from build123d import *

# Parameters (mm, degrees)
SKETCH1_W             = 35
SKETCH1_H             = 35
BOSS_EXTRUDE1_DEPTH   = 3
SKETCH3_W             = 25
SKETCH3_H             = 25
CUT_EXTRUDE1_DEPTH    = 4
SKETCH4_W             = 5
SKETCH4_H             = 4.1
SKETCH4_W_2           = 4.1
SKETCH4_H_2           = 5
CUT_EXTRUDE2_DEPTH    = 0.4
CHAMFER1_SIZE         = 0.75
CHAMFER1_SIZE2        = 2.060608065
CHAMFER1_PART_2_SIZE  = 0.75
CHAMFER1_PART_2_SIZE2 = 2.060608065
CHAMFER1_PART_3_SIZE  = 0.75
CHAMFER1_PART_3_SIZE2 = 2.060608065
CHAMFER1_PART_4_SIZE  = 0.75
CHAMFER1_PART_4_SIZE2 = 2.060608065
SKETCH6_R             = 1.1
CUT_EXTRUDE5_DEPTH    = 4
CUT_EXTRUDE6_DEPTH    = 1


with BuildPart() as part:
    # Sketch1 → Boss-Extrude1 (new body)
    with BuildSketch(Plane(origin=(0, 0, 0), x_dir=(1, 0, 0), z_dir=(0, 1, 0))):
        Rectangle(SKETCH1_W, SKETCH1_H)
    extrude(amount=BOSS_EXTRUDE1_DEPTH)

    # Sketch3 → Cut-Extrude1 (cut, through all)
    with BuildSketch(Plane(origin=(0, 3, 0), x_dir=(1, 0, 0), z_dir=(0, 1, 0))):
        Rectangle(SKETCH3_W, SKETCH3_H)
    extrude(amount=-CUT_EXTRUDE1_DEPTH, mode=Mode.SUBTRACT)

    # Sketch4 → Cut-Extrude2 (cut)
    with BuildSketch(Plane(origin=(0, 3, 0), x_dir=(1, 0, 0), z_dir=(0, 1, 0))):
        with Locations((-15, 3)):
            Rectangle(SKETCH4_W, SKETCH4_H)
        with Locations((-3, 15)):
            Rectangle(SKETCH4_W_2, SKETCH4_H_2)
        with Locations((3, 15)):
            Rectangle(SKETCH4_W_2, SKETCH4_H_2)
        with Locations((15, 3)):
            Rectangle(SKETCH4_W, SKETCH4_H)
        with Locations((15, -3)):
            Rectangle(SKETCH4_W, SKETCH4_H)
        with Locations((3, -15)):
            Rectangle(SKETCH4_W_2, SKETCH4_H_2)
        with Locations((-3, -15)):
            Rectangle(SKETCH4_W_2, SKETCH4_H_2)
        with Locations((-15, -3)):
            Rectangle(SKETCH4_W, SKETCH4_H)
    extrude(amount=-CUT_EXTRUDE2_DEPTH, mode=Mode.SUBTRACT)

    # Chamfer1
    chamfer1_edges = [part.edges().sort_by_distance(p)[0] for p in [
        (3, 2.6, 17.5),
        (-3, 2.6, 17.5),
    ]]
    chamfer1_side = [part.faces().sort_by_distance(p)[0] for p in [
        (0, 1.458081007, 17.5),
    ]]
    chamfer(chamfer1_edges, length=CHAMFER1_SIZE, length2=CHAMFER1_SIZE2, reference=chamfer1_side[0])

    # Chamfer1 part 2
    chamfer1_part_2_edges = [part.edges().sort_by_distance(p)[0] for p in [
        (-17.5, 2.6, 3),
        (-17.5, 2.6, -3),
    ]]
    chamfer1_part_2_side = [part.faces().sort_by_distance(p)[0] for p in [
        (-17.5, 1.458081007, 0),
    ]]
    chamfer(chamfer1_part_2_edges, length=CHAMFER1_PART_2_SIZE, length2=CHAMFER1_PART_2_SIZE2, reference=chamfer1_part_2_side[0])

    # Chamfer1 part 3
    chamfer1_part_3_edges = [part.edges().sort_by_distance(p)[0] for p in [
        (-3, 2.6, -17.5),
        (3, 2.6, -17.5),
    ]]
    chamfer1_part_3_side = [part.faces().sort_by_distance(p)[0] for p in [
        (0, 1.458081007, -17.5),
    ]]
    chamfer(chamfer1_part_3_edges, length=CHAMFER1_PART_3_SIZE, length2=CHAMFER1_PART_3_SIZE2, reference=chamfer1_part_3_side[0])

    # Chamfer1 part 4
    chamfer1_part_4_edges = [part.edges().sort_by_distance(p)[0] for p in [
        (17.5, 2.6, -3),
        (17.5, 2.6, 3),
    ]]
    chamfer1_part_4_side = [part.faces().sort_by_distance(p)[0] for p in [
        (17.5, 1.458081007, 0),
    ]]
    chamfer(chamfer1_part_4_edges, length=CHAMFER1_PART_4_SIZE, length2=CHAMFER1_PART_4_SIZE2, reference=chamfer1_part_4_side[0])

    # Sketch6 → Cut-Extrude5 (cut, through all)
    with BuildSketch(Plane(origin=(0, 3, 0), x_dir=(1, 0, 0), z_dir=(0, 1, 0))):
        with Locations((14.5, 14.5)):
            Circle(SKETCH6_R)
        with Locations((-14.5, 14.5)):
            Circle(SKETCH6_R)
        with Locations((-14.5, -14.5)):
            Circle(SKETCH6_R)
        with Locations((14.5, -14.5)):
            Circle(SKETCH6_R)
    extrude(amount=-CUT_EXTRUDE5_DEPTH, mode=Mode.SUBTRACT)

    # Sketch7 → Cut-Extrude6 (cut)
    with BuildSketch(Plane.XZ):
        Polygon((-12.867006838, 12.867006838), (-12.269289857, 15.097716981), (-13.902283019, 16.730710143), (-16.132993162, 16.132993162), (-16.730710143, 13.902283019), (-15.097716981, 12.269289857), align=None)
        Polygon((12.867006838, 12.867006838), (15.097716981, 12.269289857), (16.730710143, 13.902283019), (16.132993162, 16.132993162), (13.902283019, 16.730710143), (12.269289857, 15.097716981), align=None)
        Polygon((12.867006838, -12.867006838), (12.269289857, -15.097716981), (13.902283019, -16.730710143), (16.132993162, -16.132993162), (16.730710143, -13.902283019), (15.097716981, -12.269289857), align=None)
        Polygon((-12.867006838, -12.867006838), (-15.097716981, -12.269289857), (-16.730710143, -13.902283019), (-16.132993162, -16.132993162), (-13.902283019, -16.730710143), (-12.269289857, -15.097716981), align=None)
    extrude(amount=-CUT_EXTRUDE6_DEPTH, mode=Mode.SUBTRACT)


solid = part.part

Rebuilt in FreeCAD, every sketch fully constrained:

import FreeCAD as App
import Part
import Sketcher
from FreeCAD import Vector
Q = App.Units.Quantity


def edges_at(feature, points):
    """Names of the edges that pass closest to the given points."""
    edges = feature.Shape.Edges
    near = lambda p: min(range(len(edges)), key=lambda i: edges[i].distToShape(Part.Vertex(*p))[0])
    return sorted({f"Edge{near(p) + 1}" for p in points})

doc = App.newDocument("Part")
body = doc.addObject("PartDesign::Body", "Body")

sketch1 = body.newObject("Sketcher::SketchObject", "Sketch")
sketch1.AttachmentSupport = (doc.getObject("XZ_Plane"), [""])
sketch1.MapMode = "FlatFace"
sketch1.addGeometry([
    Part.LineSegment(Vector(-18, -18, 0), Vector(-18, 18, 0)),
    Part.LineSegment(Vector(-18, 18, 0), Vector(18, 18, 0)),
    Part.LineSegment(Vector(18, 18, 0), Vector(18, -18, 0)),
    Part.LineSegment(Vector(18, -18, 0), Vector(-18, -18, 0)),
], False)
sketch1.addConstraint([
    Sketcher.Constraint("Coincident", 0, 2, 1, 1),
    Sketcher.Constraint("Coincident", 1, 2, 2, 1),
    Sketcher.Constraint("Coincident", 2, 2, 3, 1),
    Sketcher.Constraint("Coincident", 3, 2, 0, 1),
    Sketcher.Constraint("Vertical", 0),
    Sketcher.Constraint("Horizontal", 1),
    Sketcher.Constraint("Vertical", 2),
    Sketcher.Constraint("Horizontal", 3),
    Sketcher.Constraint("Symmetric", 0, 2, 2, 2, -1, 1),
    Sketcher.Constraint("Equal", 3, 0),
    Sketcher.Constraint("DistanceX", 1, 1, 1, 2, 35.0),
])
pad1 = body.newObject("PartDesign::Pad", "Pad")
pad1.Profile = sketch1
pad1.Length = 3
pad1.Reversed = True

sketch2 = body.newObject("Sketcher::SketchObject", "Sketch001")
sketch2.AttachmentSupport = (doc.getObject("XZ_Plane"), [""])
sketch2.MapMode = "FlatFace"
sketch2.AttachmentOffset = App.Placement(Vector(0, 0, -3), App.Rotation())
sketch2.addGeometry([
    Part.LineSegment(Vector(-12, -12, 0), Vector(-12, 12, 0)),
    Part.LineSegment(Vector(-12, 12, 0), Vector(12, 12, 0)),
    Part.LineSegment(Vector(12, 12, 0), Vector(12, -12, 0)),
    Part.LineSegment(Vector(12, -12, 0), Vector(-12, -12, 0)),
], False)
sketch2.addConstraint([
    Sketcher.Constraint("Coincident", 0, 2, 1, 1),
    Sketcher.Constraint("Coincident", 1, 2, 2, 1),
    Sketcher.Constraint("Coincident", 2, 2, 3, 1),
    Sketcher.Constraint("Coincident", 3, 2, 0, 1),
    Sketcher.Constraint("Vertical", 0),
    Sketcher.Constraint("Horizontal", 1),
    Sketcher.Constraint("Vertical", 2),
    Sketcher.Constraint("Horizontal", 3),
    Sketcher.Constraint("Symmetric", 0, 2, 2, 2, -1, 1),
    Sketcher.Constraint("Equal", 3, 0),
    Sketcher.Constraint("DistanceX", 1, 1, 1, 2, 25.0),
])
pocket1 = body.newObject("PartDesign::Pocket", "Pocket")
pocket1.Profile = sketch2
pocket1.Type = "ThroughAll"
pocket1.Reversed = True

sketch3 = body.newObject("Sketcher::SketchObject", "Sketch002")
sketch3.AttachmentSupport = (doc.getObject("XZ_Plane"), [""])
sketch3.MapMode = "FlatFace"
sketch3.AttachmentOffset = App.Placement(Vector(0, 0, -3), App.Rotation())
sketch3.addGeometry([
    Part.LineSegment(Vector(-17.5, -5, 0), Vector(-17.5, -0.9, 0)),
    Part.LineSegment(Vector(-17.5, -0.9, 0), Vector(-12.5, -0.9, 0)),
    Part.LineSegment(Vector(-12.5, -0.9, 0), Vector(-12.5, -5, 0)),
    Part.LineSegment(Vector(-12.5, -5, 0), Vector(-17.5, -5, 0)),
    Part.LineSegment(Vector(-5, -17.5, 0), Vector(-5, -12.5, 0)),
    Part.LineSegment(Vector(-5, -12.5, 0), Vector(-0.9, -12.5, 0)),
    Part.LineSegment(Vector(-0.9, -12.5, 0), Vector(-0.9, -17.5, 0)),
    Part.LineSegment(Vector(-0.9, -17.5, 0), Vector(-5, -17.5, 0)),
    Part.LineSegment(Vector(0.9, -17.5, 0), Vector(0.9, -12.5, 0)),
    Part.LineSegment(Vector(0.9, -12.5, 0), Vector(5, -12.5, 0)),
    Part.LineSegment(Vector(5, -12.5, 0), Vector(5, -17.5, 0)),
    Part.LineSegment(Vector(5, -17.5, 0), Vector(0.9, -17.5, 0)),
    Part.LineSegment(Vector(12.5, -5, 0), Vector(12.5, -0.9, 0)),
    Part.LineSegment(Vector(12.5, -0.9, 0), Vector(17.5, -0.9, 0)),
    Part.LineSegment(Vector(17.5, -0.9, 0), Vector(17.5, -5, 0)),
    Part.LineSegment(Vector(17.5, -5, 0), Vector(12.5, -5, 0)),
    Part.LineSegment(Vector(12.5, 0.9, 0), Vector(12.5, 5, 0)),
    Part.LineSegment(Vector(12.5, 5, 0), Vector(17.5, 5, 0)),
    Part.LineSegment(Vector(17.5, 5, 0), Vector(17.5, 0.9, 0)),
    Part.LineSegment(Vector(17.5, 0.9, 0), Vector(12.5, 0.9, 0)),
    Part.LineSegment(Vector(0.9, 12.5, 0), Vector(0.9, 17.5, 0)),
    Part.LineSegment(Vector(0.9, 17.5, 0), Vector(5, 17.5, 0)),
    Part.LineSegment(Vector(5, 17.5, 0), Vector(5, 12.5, 0)),
    Part.LineSegment(Vector(5, 12.5, 0), Vector(0.9, 12.5, 0)),
    Part.LineSegment(Vector(-5, 12.5, 0), Vector(-5, 17.5, 0)),
    Part.LineSegment(Vector(-5, 17.5, 0), Vector(-0.9, 17.5, 0)),
    Part.LineSegment(Vector(-0.9, 17.5, 0), Vector(-0.9, 12.5, 0)),
    Part.LineSegment(Vector(-0.9, 12.5, 0), Vector(-5, 12.5, 0)),
    Part.LineSegment(Vector(-17.5, 0.9, 0), Vector(-17.5, 5, 0)),
    Part.LineSegment(Vector(-17.5, 5, 0), Vector(-12.5, 5, 0)),
    Part.LineSegment(Vector(-12.5, 5, 0), Vector(-12.5, 0.9, 0)),
    Part.LineSegment(Vector(-12.5, 0.9, 0), Vector(-17.5, 0.9, 0)),
], False)
sketch3.addConstraint([
    Sketcher.Constraint("Coincident", 0, 2, 1, 1),
    Sketcher.Constraint("Coincident", 1, 2, 2, 1),
    Sketcher.Constraint("Coincident", 2, 2, 3, 1),
    Sketcher.Constraint("Coincident", 3, 2, 0, 1),
    Sketcher.Constraint("Coincident", 4, 2, 5, 1),
    Sketcher.Constraint("Coincident", 5, 2, 6, 1),
    Sketcher.Constraint("Coincident", 6, 2, 7, 1),
    Sketcher.Constraint("Coincident", 7, 2, 4, 1),
    Sketcher.Constraint("Coincident", 8, 2, 9, 1),
    Sketcher.Constraint("Coincident", 9, 2, 10, 1),
    Sketcher.Constraint("Coincident", 10, 2, 11, 1),
    Sketcher.Constraint("Coincident", 11, 2, 8, 1),
    Sketcher.Constraint("Coincident", 12, 2, 13, 1),
    Sketcher.Constraint("Coincident", 13, 2, 14, 1),
    Sketcher.Constraint("Coincident", 14, 2, 15, 1),
    Sketcher.Constraint("Coincident", 15, 2, 12, 1),
    Sketcher.Constraint("Coincident", 16, 2, 17, 1),
    Sketcher.Constraint("Coincident", 17, 2, 18, 1),
    Sketcher.Constraint("Coincident", 18, 2, 19, 1),
    Sketcher.Constraint("Coincident", 19, 2, 16, 1),
    Sketcher.Constraint("Coincident", 20, 2, 21, 1),
    Sketcher.Constraint("Coincident", 21, 2, 22, 1),
    Sketcher.Constraint("Coincident", 22, 2, 23, 1),
    Sketcher.Constraint("Coincident", 23, 2, 20, 1),
    Sketcher.Constraint("Coincident", 24, 2, 25, 1),
    Sketcher.Constraint("Coincident", 25, 2, 26, 1),
    Sketcher.Constraint("Coincident", 26, 2, 27, 1),
    Sketcher.Constraint("Coincident", 27, 2, 24, 1),
    Sketcher.Constraint("Coincident", 28, 2, 29, 1),
    Sketcher.Constraint("Coincident", 29, 2, 30, 1),
    Sketcher.Constraint("Coincident", 30, 2, 31, 1),
    Sketcher.Constraint("Coincident", 31, 2, 28, 1),
    Sketcher.Constraint("Vertical", 0),
    Sketcher.Constraint("Horizontal", 1),
    Sketcher.Constraint("Vertical", 2),
    Sketcher.Constraint("Horizontal", 3),
    Sketcher.Constraint("Vertical", 4),
    Sketcher.Constraint("Horizontal", 5),
    Sketcher.Constraint("Vertical", 6),
    Sketcher.Constraint("Horizontal", 7),
    Sketcher.Constraint("Vertical", 8),
    Sketcher.Constraint("Horizontal", 9),
    Sketcher.Constraint("Vertical", 10),
    Sketcher.Constraint("Horizontal", 11),
    Sketcher.Constraint("Vertical", 12),
    Sketcher.Constraint("Horizontal", 13),
    Sketcher.Constraint("Vertical", 14),
    Sketcher.Constraint("Horizontal", 15),
    Sketcher.Constraint("Vertical", 16),
    Sketcher.Constraint("Horizontal", 17),
    Sketcher.Constraint("Vertical", 18),
    Sketcher.Constraint("Horizontal", 19),
    Sketcher.Constraint("Vertical", 20),
    Sketcher.Constraint("Horizontal", 21),
    Sketcher.Constraint("Vertical", 22),
    Sketcher.Constraint("Horizontal", 23),
    Sketcher.Constraint("Vertical", 24),
    Sketcher.Constraint("Horizontal", 25),
    Sketcher.Constraint("Vertical", 26),
    Sketcher.Constraint("Horizontal", 27),
    Sketcher.Constraint("Vertical", 28),
    Sketcher.Constraint("Horizontal", 29),
    Sketcher.Constraint("Vertical", 30),
    Sketcher.Constraint("Horizontal", 31),
    Sketcher.Constraint("Symmetric", 2, 2, 16, 2, -1, 1),
    Sketcher.Constraint("Symmetric", 0, 2, 18, 2, -1, 1),
    Sketcher.Constraint("Symmetric", 6, 2, 20, 2, -1, 1),
    Sketcher.Constraint("Symmetric", 4, 2, 22, 2, -1, 1),
    Sketcher.Constraint("Symmetric", 10, 2, 24, 2, -1, 1),
    Sketcher.Constraint("Symmetric", 8, 2, 26, 2, -1, 1),
    Sketcher.Constraint("Symmetric", 14, 2, 28, 2, -1, 1),
    Sketcher.Constraint("Symmetric", 12, 2, 30, 2, -1, 1),
    Sketcher.Constraint("Symmetric", 5, 2, 8, 2, -2),
    Sketcher.Constraint("Symmetric", 7, 2, 10, 2, -2),
    Sketcher.Constraint("Symmetric", 1, 2, 12, 2, -2),
    Sketcher.Constraint("Symmetric", 3, 2, 14, 2, -2),
    Sketcher.Constraint("Equal", 27, 0),
    Sketcher.Constraint("Equal", 31, 4),
    Sketcher.Constraint("DistanceX", 1, 1, 1, 2, 5.0),
    Sketcher.Constraint("DistanceX", 5, 1, 5, 2, 4.1),
    Sketcher.Constraint("DistanceX", 4, 2, 8, 2, 6.0),
    Sketcher.Constraint("DistanceY", 12, 2, 16, 2, 6.0),
    Sketcher.Constraint("DistanceX", 0, 2, -1, 1, 17.5),
    Sketcher.Constraint("DistanceY", 4, 2, -1, 1, 12.5),
])
pocket2 = body.newObject("PartDesign::Pocket", "Pocket001")
pocket2.Profile = sketch3
pocket2.Length = 0.4
pocket2.Reversed = True
doc.recompute()

chamfer = body.newObject("PartDesign::Chamfer", "Chamfer")
chamfer.Base = (pocket2, edges_at(pocket2, [(3, 2.6, 17.5), (-3, 2.6, 17.5)]))
chamfer.ChamferType = "Two distances"
chamfer.Size = 0.75
chamfer.Size2 = 2.060608
doc.recompute()

chamfer2 = body.newObject("PartDesign::Chamfer", "Chamfer001")
chamfer2.Base = (chamfer, edges_at(chamfer, [(-17.5, 2.6, 3), (-17.5, 2.6, -3)]))
chamfer2.ChamferType = "Two distances"
chamfer2.Size = 0.75
chamfer2.Size2 = 2.060608
doc.recompute()

chamfer3 = body.newObject("PartDesign::Chamfer", "Chamfer002")
chamfer3.Base = (chamfer2, edges_at(chamfer2, [(-3, 2.6, -17.5), (3, 2.6, -17.5)]))
chamfer3.ChamferType = "Two distances"
chamfer3.Size = 0.75
chamfer3.Size2 = 2.060608
doc.recompute()

chamfer4 = body.newObject("PartDesign::Chamfer", "Chamfer003")
chamfer4.Base = (chamfer3, edges_at(chamfer3, [(17.5, 2.6, -3), (17.5, 2.6, 3)]))
chamfer4.ChamferType = "Two distances"
chamfer4.Size = 0.75
chamfer4.Size2 = 2.060608

sketch4 = body.newObject("Sketcher::SketchObject", "Sketch003")
sketch4.AttachmentSupport = (doc.getObject("XZ_Plane"), [""])
sketch4.MapMode = "FlatFace"
sketch4.AttachmentOffset = App.Placement(Vector(0, 0, -3), App.Rotation())
sketch4.addGeometry([
    Part.Circle(Vector(14.5, -14.5, 0), Vector(0, 0, 1), 1.1),
    Part.Circle(Vector(-14.5, -14.5, 0), Vector(0, 0, 1), 1.1),
    Part.Circle(Vector(-14.5, 14.5, 0), Vector(0, 0, 1), 1.1),
    Part.Circle(Vector(14.5, 14.5, 0), Vector(0, 0, 1), 1.1),
], False)
sketch4.addConstraint([
    Sketcher.Constraint("Equal", 0, 1),
    Sketcher.Constraint("Equal", 1, 2),
    Sketcher.Constraint("Equal", 2, 3),
    Sketcher.Constraint("Symmetric", 0, 3, 2, 3, -1, 1),
    Sketcher.Constraint("Symmetric", 1, 3, 3, 3, -1, 1),
    Sketcher.Constraint("Symmetric", 0, 3, 1, 3, -2),
    Sketcher.Constraint("Diameter", 0, 2.2),
    Sketcher.Constraint("DistanceX", 1, 3, 0, 3, 29.0),
    Sketcher.Constraint("DistanceY", 1, 3, 2, 3, 29.0),
])
pocket3 = body.newObject("PartDesign::Pocket", "Pocket002")
pocket3.Profile = sketch4
pocket3.Type = "ThroughAll"
pocket3.Reversed = True

sketch5 = body.newObject("Sketcher::SketchObject", "Sketch004")
sketch5.AttachmentSupport = (doc.getObject("XZ_Plane"), [""])
sketch5.MapMode = "FlatFace"
sketch5.addGeometry([
    Part.LineSegment(Vector(-12.9, 12.9, 0), Vector(-12.3, 15.1, 0)),
    Part.LineSegment(Vector(-12.3, 15.1, 0), Vector(-13.9, 16.7, 0)),
    Part.LineSegment(Vector(-13.9, 16.7, 0), Vector(-16.1, 16.1, 0)),
    Part.LineSegment(Vector(-16.1, 16.1, 0), Vector(-16.7, 13.9, 0)),
    Part.LineSegment(Vector(-16.7, 13.9, 0), Vector(-15.1, 12.3, 0)),
    Part.LineSegment(Vector(-15.1, 12.3, 0), Vector(-12.9, 12.9, 0)),
    Part.LineSegment(Vector(12.9, 12.9, 0), Vector(15.1, 12.3, 0)),
    Part.LineSegment(Vector(15.1, 12.3, 0), Vector(16.7, 13.9, 0)),
    Part.LineSegment(Vector(16.7, 13.9, 0), Vector(16.1, 16.1, 0)),
    Part.LineSegment(Vector(16.1, 16.1, 0), Vector(13.9, 16.7, 0)),
    Part.LineSegment(Vector(13.9, 16.7, 0), Vector(12.3, 15.1, 0)),
    Part.LineSegment(Vector(12.3, 15.1, 0), Vector(12.9, 12.9, 0)),
    Part.LineSegment(Vector(12.9, -12.9, 0), Vector(12.3, -15.1, 0)),
    Part.LineSegment(Vector(12.3, -15.1, 0), Vector(13.9, -16.7, 0)),
    Part.LineSegment(Vector(13.9, -16.7, 0), Vector(16.1, -16.1, 0)),
    Part.LineSegment(Vector(16.1, -16.1, 0), Vector(16.7, -13.9, 0)),
    Part.LineSegment(Vector(16.7, -13.9, 0), Vector(15.1, -12.3, 0)),
    Part.LineSegment(Vector(15.1, -12.3, 0), Vector(12.9, -12.9, 0)),
    Part.LineSegment(Vector(-12.9, -12.9, 0), Vector(-15.1, -12.3, 0)),
    Part.LineSegment(Vector(-15.1, -12.3, 0), Vector(-16.7, -13.9, 0)),
    Part.LineSegment(Vector(-16.7, -13.9, 0), Vector(-16.1, -16.1, 0)),
    Part.LineSegment(Vector(-16.1, -16.1, 0), Vector(-13.9, -16.7, 0)),
    Part.LineSegment(Vector(-13.9, -16.7, 0), Vector(-12.3, -15.1, 0)),
    Part.LineSegment(Vector(-12.3, -15.1, 0), Vector(-12.9, -12.9, 0)),
], False)
sketch5.addConstraint([
    Sketcher.Constraint("Coincident", 0, 2, 1, 1),
    Sketcher.Constraint("Coincident", 1, 2, 2, 1),
    Sketcher.Constraint("Coincident", 2, 2, 3, 1),
    Sketcher.Constraint("Coincident", 3, 2, 4, 1),
    Sketcher.Constraint("Coincident", 4, 2, 5, 1),
    Sketcher.Constraint("Coincident", 5, 2, 0, 1),
    Sketcher.Constraint("Coincident", 6, 2, 7, 1),
    Sketcher.Constraint("Coincident", 7, 2, 8, 1),
    Sketcher.Constraint("Coincident", 8, 2, 9, 1),
    Sketcher.Constraint("Coincident", 9, 2, 10, 1),
    Sketcher.Constraint("Coincident", 10, 2, 11, 1),
    Sketcher.Constraint("Coincident", 11, 2, 6, 1),
    Sketcher.Constraint("Coincident", 12, 2, 13, 1),
    Sketcher.Constraint("Coincident", 13, 2, 14, 1),
    Sketcher.Constraint("Coincident", 14, 2, 15, 1),
    Sketcher.Constraint("Coincident", 15, 2, 16, 1),
    Sketcher.Constraint("Coincident", 16, 2, 17, 1),
    Sketcher.Constraint("Coincident", 17, 2, 12, 1),
    Sketcher.Constraint("Coincident", 18, 2, 19, 1),
    Sketcher.Constraint("Coincident", 19, 2, 20, 1),
    Sketcher.Constraint("Coincident", 20, 2, 21, 1),
    Sketcher.Constraint("Coincident", 21, 2, 22, 1),
    Sketcher.Constraint("Coincident", 22, 2, 23, 1),
    Sketcher.Constraint("Coincident", 23, 2, 18, 1),
    Sketcher.Constraint("Symmetric", 0, 2, 12, 2, -1, 1),
    Sketcher.Constraint("Symmetric", 1, 2, 13, 2, -1, 1),
    Sketcher.Constraint("Symmetric", 2, 2, 14, 2, -1, 1),
    Sketcher.Constraint("Symmetric", 3, 2, 15, 2, -1, 1),
    Sketcher.Constraint("Symmetric", 4, 2, 16, 2, -1, 1),
    Sketcher.Constraint("Symmetric", 5, 2, 17, 2, -1, 1),
    Sketcher.Constraint("Symmetric", 6, 2, 18, 2, -1, 1),
    Sketcher.Constraint("Symmetric", 7, 2, 19, 2, -1, 1),
    Sketcher.Constraint("Symmetric", 8, 2, 20, 2, -1, 1),
    Sketcher.Constraint("Symmetric", 9, 2, 21, 2, -1, 1),
    Sketcher.Constraint("Symmetric", 10, 2, 22, 2, -1, 1),
    Sketcher.Constraint("Symmetric", 11, 2, 23, 2, -1, 1),
    Sketcher.Constraint("Symmetric", 4, 2, 6, 2, -2),
    Sketcher.Constraint("Symmetric", 3, 2, 7, 2, -2),
    Sketcher.Constraint("Symmetric", 2, 2, 8, 2, -2),
    Sketcher.Constraint("Symmetric", 1, 2, 9, 2, -2),
    Sketcher.Constraint("Symmetric", 0, 2, 10, 2, -2),
    Sketcher.Constraint("Symmetric", 5, 2, 11, 2, -2),
    Sketcher.Constraint("Parallel", 0, 3),
    Sketcher.Constraint("Parallel", 1, 4),
    Sketcher.Constraint("Parallel", 2, 5),
    Sketcher.Constraint("Perpendicular", 3, 6),
    Sketcher.Constraint("Perpendicular", 4, 7),
    Sketcher.Constraint("Equal", 0, 1),
    Sketcher.Constraint("Equal", 1, 2),
    Sketcher.Constraint("Equal", 2, 3),
    Sketcher.Constraint("Angle", 0, Q("75 deg")),
    Sketcher.Constraint("DistanceX", 1, 2, 6, 2, 29.0),
    Sketcher.Constraint("DistanceY", 12, 2, 7, 2, 29.0),
    Sketcher.Constraint("Distance", 0, 2.309401),
])
pocket4 = body.newObject("PartDesign::Pocket", "Pocket003")
pocket4.Profile = sketch5
pocket4.Length = 1

doc.recompute()
